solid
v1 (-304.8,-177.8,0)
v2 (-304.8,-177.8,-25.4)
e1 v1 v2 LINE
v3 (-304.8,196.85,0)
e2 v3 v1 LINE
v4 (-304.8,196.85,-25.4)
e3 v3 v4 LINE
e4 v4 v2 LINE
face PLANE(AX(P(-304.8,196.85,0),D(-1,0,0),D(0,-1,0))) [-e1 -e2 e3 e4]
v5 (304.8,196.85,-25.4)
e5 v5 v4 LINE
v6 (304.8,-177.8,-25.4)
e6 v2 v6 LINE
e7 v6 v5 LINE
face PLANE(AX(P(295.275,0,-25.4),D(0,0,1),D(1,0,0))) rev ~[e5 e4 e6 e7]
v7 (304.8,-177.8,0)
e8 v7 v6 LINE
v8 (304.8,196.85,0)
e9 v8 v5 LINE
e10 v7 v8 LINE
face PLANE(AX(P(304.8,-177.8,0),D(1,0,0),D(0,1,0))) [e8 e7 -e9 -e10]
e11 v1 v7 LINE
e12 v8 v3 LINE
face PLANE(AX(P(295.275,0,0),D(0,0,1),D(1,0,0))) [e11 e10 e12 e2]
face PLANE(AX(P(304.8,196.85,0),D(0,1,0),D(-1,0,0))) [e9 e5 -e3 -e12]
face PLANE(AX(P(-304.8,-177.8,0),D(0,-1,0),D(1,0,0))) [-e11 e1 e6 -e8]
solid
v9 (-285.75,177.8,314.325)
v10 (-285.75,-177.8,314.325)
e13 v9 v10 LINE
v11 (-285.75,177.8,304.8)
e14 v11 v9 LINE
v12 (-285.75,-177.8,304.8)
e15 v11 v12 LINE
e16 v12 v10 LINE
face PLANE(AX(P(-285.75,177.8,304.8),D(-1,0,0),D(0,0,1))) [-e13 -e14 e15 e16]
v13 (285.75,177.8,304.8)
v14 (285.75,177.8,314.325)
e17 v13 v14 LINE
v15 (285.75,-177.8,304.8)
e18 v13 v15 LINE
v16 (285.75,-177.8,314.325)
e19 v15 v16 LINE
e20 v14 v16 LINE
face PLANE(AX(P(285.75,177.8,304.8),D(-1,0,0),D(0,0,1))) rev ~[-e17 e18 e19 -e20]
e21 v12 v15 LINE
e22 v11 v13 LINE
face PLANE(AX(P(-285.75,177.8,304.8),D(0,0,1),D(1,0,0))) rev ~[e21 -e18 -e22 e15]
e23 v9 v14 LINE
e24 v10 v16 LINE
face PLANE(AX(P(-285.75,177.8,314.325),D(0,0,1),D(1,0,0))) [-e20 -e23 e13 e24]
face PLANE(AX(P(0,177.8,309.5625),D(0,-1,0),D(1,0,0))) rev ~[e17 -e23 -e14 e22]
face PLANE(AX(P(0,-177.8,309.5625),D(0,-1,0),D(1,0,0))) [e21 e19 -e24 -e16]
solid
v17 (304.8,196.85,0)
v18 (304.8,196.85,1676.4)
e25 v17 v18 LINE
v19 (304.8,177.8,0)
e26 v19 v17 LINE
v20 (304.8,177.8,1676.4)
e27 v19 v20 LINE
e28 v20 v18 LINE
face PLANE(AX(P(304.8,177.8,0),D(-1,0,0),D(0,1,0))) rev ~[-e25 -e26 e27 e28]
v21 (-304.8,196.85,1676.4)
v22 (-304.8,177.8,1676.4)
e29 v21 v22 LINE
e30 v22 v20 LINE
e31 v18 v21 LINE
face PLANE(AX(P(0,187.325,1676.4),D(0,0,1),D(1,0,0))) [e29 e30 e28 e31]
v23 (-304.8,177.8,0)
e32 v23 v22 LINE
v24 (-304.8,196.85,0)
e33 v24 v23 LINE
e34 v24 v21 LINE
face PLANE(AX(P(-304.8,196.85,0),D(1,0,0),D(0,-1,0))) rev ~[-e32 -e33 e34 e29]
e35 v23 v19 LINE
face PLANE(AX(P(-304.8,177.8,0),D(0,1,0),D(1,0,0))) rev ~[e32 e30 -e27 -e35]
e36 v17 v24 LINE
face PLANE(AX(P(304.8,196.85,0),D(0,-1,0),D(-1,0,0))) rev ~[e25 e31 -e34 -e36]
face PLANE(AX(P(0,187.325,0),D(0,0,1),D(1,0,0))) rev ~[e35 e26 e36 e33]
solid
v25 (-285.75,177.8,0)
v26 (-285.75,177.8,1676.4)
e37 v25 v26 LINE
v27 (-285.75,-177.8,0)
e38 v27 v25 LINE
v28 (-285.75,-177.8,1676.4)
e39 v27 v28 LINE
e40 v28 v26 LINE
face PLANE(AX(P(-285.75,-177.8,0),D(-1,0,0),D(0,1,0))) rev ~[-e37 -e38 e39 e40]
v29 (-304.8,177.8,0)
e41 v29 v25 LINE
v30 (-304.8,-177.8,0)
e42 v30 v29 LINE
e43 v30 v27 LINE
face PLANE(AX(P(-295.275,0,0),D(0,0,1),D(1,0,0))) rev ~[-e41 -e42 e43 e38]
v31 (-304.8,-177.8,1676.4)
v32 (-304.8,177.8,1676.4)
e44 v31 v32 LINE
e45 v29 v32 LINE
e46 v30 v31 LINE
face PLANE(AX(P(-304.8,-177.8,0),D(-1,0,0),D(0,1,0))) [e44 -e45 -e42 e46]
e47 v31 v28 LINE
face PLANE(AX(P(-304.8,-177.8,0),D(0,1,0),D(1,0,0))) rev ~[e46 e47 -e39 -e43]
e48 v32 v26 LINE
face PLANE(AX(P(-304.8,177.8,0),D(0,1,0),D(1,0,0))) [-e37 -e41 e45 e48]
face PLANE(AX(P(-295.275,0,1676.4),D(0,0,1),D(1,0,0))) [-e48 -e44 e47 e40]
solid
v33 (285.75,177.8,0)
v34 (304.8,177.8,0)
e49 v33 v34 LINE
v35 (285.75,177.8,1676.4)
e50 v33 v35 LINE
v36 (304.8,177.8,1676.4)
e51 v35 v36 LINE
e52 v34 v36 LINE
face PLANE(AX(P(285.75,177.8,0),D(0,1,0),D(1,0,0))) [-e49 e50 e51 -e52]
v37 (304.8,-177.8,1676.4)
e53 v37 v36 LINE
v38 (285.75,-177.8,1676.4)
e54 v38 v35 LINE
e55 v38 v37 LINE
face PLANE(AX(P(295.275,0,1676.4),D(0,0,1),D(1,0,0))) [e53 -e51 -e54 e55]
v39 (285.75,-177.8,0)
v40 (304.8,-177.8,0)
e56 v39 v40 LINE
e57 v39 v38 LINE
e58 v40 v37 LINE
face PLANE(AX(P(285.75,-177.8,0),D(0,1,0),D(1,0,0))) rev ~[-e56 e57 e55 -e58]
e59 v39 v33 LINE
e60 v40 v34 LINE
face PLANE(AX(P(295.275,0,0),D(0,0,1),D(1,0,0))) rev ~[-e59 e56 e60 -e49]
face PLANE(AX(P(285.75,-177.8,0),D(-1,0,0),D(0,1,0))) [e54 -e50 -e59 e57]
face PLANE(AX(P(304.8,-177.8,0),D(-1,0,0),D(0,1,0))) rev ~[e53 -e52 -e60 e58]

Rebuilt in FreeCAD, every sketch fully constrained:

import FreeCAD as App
import Part
import Sketcher
from FreeCAD import Vector
Q = App.Units.Quantity


def add_polygon(sketch, points):
    """Adds a closed chain of lines whose ends are joined by coincident constraints."""
    first, n = sketch.GeometryCount, len(points)
    for a, b in zip(points, points[1:] + points[:1]):
        sketch.addGeometry(Part.LineSegment(App.Vector(*a, 0), App.Vector(*b, 0)), False)
    for i in range(n):
        sketch.addConstraint(Sketcher.Constraint("Coincident", first + i, 2, first + (i + 1) % n, 1))

doc = App.newDocument("Part")
body = doc.addObject("PartDesign::Body", "Body")

# Sketch on XY plane
sketch1 = doc.addObject("Sketcher::SketchObject", "Sketch")
body.addObject(sketch1)
sketch1.AttachmentSupport = (doc.XY_Plane, [""])
sketch1.MapMode = "FlatFace"
add_polygon(sketch1, [(304.8, 177.8), (304.8, 196.85), (-304.8, 196.85), (-304.8, 177.8)])  # lines 0-3
sketch1.addConstraint(Sketcher.Constraint("Vertical", 0))
sketch1.addConstraint(Sketcher.Constraint("Horizontal", 1))
sketch1.addConstraint(Sketcher.Constraint("Vertical", 2))
sketch1.addConstraint(Sketcher.Constraint("Horizontal", 3))
sketch1.addConstraint(Sketcher.Constraint("DistanceX", 1, 2, 1, 1, Q("24 in")))
sketch1.addConstraint(Sketcher.Constraint("DistanceX", -1, 1, 0, 2, Q("12 in")))
sketch1.addConstraint(Sketcher.Constraint("DistanceY", -1, 1, 2, 2, Q("7 in")))
sketch1.addConstraint(Sketcher.Constraint("DistanceY", 0, 1, 0, 2, Q("0.75 in")))
pad1 = doc.addObject("PartDesign::Pad", "Pad")
body.addObject(pad1)
pad1.Profile = sketch1
pad1.Length = Q("66 in")
body2 = doc.addObject("PartDesign::Body", "Body001")
body2.AllowCompound = True

# Sketch on XY plane
sketch2 = doc.addObject("Sketcher::SketchObject", "Sketch001")
body2.addObject(sketch2)
sketch2.AttachmentSupport = (doc.getObject("XY_Plane001"), [""])
sketch2.MapMode = "FlatFace"
add_polygon(sketch2, [(-304.8, 177.8), (-304.8, -177.8), (-285.75, -177.8), (-285.75, 177.8)])  # lines 0-3
add_polygon(sketch2, [(285.75, 177.8), (285.75, -177.8), (304.8, -177.8), (304.8, 177.8)])  # lines 4-7
sketch2.addConstraint(Sketcher.Constraint("Vertical", 0))
sketch2.addConstraint(Sketcher.Constraint("Horizontal", 1))
sketch2.addConstraint(Sketcher.Constraint("Vertical", 2))
sketch2.addConstraint(Sketcher.Constraint("Horizontal", 3))
sketch2.addConstraint(Sketcher.Constraint("Vertical", 4))
sketch2.addConstraint(Sketcher.Constraint("Horizontal", 5))
sketch2.addConstraint(Sketcher.Constraint("Vertical", 6))
sketch2.addConstraint(Sketcher.Constraint("Horizontal", 7))
sketch2.addConstraint(Sketcher.Constraint("Symmetric", 2, 2, 4, 2, -1, 1))
sketch2.addConstraint(Sketcher.Constraint("Symmetric", 0, 2, 6, 2, -1, 1))
sketch2.addConstraint(Sketcher.Constraint("Horizontal", 1, 2, 4, 2))
sketch2.addConstraint(Sketcher.Constraint("DistanceY", 0, 2, 0, 1, Q("14 in")))
sketch2.addConstraint(Sketcher.Constraint("DistanceX", 0, 2, -1, 1, Q("12 in")))
sketch2.addConstraint(Sketcher.Constraint("DistanceX", 1, 1, 1, 2, Q("0.75 in")))
pad2 = doc.addObject("PartDesign::Pad", "Pad001")
body2.addObject(pad2)
pad2.Profile = sketch2
pad2.Length = Q("66 in")
body3 = doc.addObject("PartDesign::Body", "Body002")

# Sketch on XY plane
sketch3 = doc.addObject("Sketcher::SketchObject", "Sketch002")
body3.addObject(sketch3)
sketch3.AttachmentSupport = (doc.getObject("XY_Plane002"), [""])
sketch3.MapMode = "FlatFace"
add_polygon(sketch3, [(304.8, -177.8), (304.8, 196.85), (-304.8, 196.85), (-304.8, -177.8)])  # lines 0-3
sketch3.addConstraint(Sketcher.Constraint("Vertical", 0))
sketch3.addConstraint(Sketcher.Constraint("Horizontal", 1))
sketch3.addConstraint(Sketcher.Constraint("Vertical", 2))
sketch3.addConstraint(Sketcher.Constraint("Horizontal", 3))
sketch3.addConstraint(Sketcher.Constraint("DistanceX", 1, 2, 1, 1, Q("24 in")))
sketch3.addConstraint(Sketcher.Constraint("DistanceX", -1, 1, 0, 2, Q("12 in")))
sketch3.addConstraint(Sketcher.Constraint("DistanceY", 2, 2, -1, 1, Q("7 in")))
sketch3.addConstraint(Sketcher.Constraint("DistanceY", 0, 1, 0, 2, Q("14.75 in")))
pad3 = doc.addObject("PartDesign::Pad", "Pad002")
body3.addObject(pad3)
pad3.Profile = sketch3
pad3.Length = Q("1 in")
pad3.Reversed = True
body4 = doc.addObject("PartDesign::Body", "Body003")

# Sketch on XZ plane
sketch4 = doc.addObject("Sketcher::SketchObject", "Sketch003")
body4.addObject(sketch4)
sketch4.AttachmentSupport = (doc.getObject("XZ_Plane003"), [""])
sketch4.MapMode = "FlatFace"
sketch4.AttachmentOffset = App.Placement(Vector(0, 0, -7 * 25.4), App.Rotation())
add_polygon(sketch4, [(-285.75, 314.325), (-285.75, 304.8), (285.75, 304.8), (285.75, 314.325)])  # lines 0-3
sketch4.addConstraint(Sketcher.Constraint("Vertical", 0))
sketch4.addConstraint(Sketcher.Constraint("Horizontal", 1))
sketch4.addConstraint(Sketcher.Constraint("Vertical", 2))
sketch4.addConstraint(Sketcher.Constraint("Horizontal", 3))
sketch4.addConstraint(Sketcher.Constraint("DistanceX", 1, 1, 1, 2, Q("22.5 in")))
sketch4.addConstraint(Sketcher.Constraint("DistanceY", -1, 1, 0, 2, Q("12 in")))
sketch4.addConstraint(Sketcher.Constraint("DistanceY", 0, 2, 0, 1, Q("0.375 in")))
sketch4.addConstraint(Sketcher.Constraint("DistanceX", 0, 2, -1, 1, Q("11.25 in")))
pad4 = doc.addObject("PartDesign::Pad", "Pad003")
body4.addObject(pad4)
pad4.Profile = sketch4
pad4.Length = Q("14 in")

doc.recompute()
